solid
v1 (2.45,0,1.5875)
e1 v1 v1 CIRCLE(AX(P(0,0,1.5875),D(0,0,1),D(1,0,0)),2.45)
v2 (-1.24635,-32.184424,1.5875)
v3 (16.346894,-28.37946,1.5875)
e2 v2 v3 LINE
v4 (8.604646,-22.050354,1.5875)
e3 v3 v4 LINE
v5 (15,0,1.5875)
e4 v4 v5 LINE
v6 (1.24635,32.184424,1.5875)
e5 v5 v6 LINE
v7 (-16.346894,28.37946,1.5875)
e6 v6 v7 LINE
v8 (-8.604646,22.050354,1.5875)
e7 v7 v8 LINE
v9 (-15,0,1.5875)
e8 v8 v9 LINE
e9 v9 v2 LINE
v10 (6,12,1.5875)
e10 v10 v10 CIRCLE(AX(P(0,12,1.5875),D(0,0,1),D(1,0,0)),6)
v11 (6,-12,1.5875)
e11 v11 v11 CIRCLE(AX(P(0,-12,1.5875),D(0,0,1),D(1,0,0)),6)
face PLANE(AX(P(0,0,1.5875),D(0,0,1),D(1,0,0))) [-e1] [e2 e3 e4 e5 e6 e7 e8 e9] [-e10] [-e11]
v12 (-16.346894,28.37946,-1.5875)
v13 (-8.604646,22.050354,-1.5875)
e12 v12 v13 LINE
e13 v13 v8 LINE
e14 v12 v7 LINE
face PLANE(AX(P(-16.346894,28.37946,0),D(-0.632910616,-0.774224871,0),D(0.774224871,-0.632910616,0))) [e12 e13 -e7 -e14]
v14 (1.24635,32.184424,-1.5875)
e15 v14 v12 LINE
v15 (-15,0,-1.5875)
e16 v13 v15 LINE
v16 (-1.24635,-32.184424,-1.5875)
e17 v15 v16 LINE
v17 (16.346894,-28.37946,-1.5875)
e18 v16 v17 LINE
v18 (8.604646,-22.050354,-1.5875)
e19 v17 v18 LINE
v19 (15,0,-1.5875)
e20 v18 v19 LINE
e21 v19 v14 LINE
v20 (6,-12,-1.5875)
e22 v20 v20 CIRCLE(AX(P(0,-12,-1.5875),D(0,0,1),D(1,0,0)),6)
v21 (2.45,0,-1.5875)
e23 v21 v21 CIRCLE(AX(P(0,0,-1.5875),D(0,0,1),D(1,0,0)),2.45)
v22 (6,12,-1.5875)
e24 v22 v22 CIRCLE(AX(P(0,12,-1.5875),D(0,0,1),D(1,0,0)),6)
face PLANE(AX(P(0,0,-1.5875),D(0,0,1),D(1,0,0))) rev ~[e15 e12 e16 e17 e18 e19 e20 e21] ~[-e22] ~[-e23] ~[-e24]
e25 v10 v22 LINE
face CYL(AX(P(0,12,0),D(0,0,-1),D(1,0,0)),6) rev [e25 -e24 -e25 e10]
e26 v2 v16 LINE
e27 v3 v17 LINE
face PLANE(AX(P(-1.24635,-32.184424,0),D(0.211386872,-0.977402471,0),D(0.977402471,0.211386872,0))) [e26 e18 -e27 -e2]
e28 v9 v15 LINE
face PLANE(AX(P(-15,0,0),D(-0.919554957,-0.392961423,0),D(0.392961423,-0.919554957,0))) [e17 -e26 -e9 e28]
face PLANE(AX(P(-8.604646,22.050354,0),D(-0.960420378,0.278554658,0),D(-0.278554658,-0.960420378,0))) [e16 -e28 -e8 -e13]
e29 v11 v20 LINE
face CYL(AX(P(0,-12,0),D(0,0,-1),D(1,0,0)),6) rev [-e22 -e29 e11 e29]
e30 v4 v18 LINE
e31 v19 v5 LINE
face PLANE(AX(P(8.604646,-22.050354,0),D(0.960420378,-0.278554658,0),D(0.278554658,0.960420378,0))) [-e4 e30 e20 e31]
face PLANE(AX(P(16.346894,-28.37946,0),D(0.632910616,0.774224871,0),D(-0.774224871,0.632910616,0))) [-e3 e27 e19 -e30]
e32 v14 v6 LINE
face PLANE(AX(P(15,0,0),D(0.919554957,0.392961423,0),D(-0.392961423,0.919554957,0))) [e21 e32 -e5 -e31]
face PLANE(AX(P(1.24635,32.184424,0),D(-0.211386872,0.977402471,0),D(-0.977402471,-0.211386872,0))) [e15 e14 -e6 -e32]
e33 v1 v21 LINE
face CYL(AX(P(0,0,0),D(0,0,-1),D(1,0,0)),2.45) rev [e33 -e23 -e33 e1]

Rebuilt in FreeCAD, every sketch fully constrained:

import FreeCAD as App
import Part
import Sketcher

V = App.Vector
Q = App.Units.Quantity


def add_polygon(sketch, points):
    """Adds a closed chain of lines whose ends are joined by coincident constraints."""
    first, n = sketch.GeometryCount, len(points)
    for a, b in zip(points, points[1:] + points[:1]):
        sketch.addGeometry(Part.LineSegment(App.Vector(*a, 0), App.Vector(*b, 0)), False)
    for i in range(n):
        sketch.addConstraint(Sketcher.Constraint("Coincident", first + i, 2, first + (i + 1) % n, 1))

doc = App.newDocument("Part")
body = doc.addObject("PartDesign::Body", "Body")

# Sketch on XY plane
sketch1 = doc.addObject("Sketcher::SketchObject", "Sketch")
body.addObject(sketch1)
sketch1.AttachmentSupport = (doc.XY_Plane, [""])
sketch1.MapMode = "FlatFace"
add_polygon(sketch1, [(8.6, -22.1), (15, 0), (1.2, 32.2), (-16.3, 28.4), (-8.6, 22.1), (-15, 0), (-1.2, -32.2), (16.3, -28.4)])  # lines 0-7
sketch1.addGeometry(Part.Circle(V(0, -12, 0), V(0, 0, 1), 6), False)  # 8
sketch1.addGeometry(Part.Circle(V(0, 0, 0), V(0, 0, 1), 2.5), False)  # 9
sketch1.addGeometry(Part.Circle(V(0, 12, 0), V(0, 0, 1), 6), False)  # 10
sketch1.addConstraint([
    Sketcher.Constraint("Coincident", 9, 3, -1, 1),
    Sketcher.Constraint("Equal", 8, 10),
    Sketcher.Constraint("Symmetric", 8, 3, 10, 3, -1, 1),
    Sketcher.Constraint("Symmetric", 0, 2, 4, 2, -1, 1),
    Sketcher.Constraint("Symmetric", 1, 2, 5, 2, -1, 1),
    Sketcher.Constraint("Symmetric", 2, 2, 6, 2, -1, 1),
    Sketcher.Constraint("Symmetric", 3, 2, 7, 2, -1, 1),
    Sketcher.Constraint("PointOnObject", 8, 3, -2),
    Sketcher.Constraint("PointOnObject", 0, 2, -1),
    Sketcher.Constraint("Diameter", 8, Q("12 mm")),
    Sketcher.Constraint("Diameter", 9, Q("4.9 mm")),
    Sketcher.Constraint("Distance", 1, Q("35 mm")),
    Sketcher.Constraint("Distance", 2, Q("18 mm")),
    Sketcher.Constraint("Distance", 3, Q("10 mm")),
    Sketcher.Constraint("DistanceY", 8, 3, -1, 1, Q("12 mm")),
    Sketcher.Constraint("DistanceX", -1, 1, 0, 2, Q("15 mm")),
    Sketcher.Constraint("DistanceX", -1, 1, 1, 2, Q("1.24635 mm")),
    Sketcher.Constraint("DistanceY", -1, 1, 2, 2, Q("28.37946 mm")),
    Sketcher.Constraint("DistanceX", 2, 2, 3, 2, Q("7.742249 mm")),
])
pad1 = doc.addObject("PartDesign::Pad", "Pad")
body.addObject(pad1)
pad1.Profile = sketch1
pad1.Length = 3.175
pad1.Midplane = True

doc.recompute()
